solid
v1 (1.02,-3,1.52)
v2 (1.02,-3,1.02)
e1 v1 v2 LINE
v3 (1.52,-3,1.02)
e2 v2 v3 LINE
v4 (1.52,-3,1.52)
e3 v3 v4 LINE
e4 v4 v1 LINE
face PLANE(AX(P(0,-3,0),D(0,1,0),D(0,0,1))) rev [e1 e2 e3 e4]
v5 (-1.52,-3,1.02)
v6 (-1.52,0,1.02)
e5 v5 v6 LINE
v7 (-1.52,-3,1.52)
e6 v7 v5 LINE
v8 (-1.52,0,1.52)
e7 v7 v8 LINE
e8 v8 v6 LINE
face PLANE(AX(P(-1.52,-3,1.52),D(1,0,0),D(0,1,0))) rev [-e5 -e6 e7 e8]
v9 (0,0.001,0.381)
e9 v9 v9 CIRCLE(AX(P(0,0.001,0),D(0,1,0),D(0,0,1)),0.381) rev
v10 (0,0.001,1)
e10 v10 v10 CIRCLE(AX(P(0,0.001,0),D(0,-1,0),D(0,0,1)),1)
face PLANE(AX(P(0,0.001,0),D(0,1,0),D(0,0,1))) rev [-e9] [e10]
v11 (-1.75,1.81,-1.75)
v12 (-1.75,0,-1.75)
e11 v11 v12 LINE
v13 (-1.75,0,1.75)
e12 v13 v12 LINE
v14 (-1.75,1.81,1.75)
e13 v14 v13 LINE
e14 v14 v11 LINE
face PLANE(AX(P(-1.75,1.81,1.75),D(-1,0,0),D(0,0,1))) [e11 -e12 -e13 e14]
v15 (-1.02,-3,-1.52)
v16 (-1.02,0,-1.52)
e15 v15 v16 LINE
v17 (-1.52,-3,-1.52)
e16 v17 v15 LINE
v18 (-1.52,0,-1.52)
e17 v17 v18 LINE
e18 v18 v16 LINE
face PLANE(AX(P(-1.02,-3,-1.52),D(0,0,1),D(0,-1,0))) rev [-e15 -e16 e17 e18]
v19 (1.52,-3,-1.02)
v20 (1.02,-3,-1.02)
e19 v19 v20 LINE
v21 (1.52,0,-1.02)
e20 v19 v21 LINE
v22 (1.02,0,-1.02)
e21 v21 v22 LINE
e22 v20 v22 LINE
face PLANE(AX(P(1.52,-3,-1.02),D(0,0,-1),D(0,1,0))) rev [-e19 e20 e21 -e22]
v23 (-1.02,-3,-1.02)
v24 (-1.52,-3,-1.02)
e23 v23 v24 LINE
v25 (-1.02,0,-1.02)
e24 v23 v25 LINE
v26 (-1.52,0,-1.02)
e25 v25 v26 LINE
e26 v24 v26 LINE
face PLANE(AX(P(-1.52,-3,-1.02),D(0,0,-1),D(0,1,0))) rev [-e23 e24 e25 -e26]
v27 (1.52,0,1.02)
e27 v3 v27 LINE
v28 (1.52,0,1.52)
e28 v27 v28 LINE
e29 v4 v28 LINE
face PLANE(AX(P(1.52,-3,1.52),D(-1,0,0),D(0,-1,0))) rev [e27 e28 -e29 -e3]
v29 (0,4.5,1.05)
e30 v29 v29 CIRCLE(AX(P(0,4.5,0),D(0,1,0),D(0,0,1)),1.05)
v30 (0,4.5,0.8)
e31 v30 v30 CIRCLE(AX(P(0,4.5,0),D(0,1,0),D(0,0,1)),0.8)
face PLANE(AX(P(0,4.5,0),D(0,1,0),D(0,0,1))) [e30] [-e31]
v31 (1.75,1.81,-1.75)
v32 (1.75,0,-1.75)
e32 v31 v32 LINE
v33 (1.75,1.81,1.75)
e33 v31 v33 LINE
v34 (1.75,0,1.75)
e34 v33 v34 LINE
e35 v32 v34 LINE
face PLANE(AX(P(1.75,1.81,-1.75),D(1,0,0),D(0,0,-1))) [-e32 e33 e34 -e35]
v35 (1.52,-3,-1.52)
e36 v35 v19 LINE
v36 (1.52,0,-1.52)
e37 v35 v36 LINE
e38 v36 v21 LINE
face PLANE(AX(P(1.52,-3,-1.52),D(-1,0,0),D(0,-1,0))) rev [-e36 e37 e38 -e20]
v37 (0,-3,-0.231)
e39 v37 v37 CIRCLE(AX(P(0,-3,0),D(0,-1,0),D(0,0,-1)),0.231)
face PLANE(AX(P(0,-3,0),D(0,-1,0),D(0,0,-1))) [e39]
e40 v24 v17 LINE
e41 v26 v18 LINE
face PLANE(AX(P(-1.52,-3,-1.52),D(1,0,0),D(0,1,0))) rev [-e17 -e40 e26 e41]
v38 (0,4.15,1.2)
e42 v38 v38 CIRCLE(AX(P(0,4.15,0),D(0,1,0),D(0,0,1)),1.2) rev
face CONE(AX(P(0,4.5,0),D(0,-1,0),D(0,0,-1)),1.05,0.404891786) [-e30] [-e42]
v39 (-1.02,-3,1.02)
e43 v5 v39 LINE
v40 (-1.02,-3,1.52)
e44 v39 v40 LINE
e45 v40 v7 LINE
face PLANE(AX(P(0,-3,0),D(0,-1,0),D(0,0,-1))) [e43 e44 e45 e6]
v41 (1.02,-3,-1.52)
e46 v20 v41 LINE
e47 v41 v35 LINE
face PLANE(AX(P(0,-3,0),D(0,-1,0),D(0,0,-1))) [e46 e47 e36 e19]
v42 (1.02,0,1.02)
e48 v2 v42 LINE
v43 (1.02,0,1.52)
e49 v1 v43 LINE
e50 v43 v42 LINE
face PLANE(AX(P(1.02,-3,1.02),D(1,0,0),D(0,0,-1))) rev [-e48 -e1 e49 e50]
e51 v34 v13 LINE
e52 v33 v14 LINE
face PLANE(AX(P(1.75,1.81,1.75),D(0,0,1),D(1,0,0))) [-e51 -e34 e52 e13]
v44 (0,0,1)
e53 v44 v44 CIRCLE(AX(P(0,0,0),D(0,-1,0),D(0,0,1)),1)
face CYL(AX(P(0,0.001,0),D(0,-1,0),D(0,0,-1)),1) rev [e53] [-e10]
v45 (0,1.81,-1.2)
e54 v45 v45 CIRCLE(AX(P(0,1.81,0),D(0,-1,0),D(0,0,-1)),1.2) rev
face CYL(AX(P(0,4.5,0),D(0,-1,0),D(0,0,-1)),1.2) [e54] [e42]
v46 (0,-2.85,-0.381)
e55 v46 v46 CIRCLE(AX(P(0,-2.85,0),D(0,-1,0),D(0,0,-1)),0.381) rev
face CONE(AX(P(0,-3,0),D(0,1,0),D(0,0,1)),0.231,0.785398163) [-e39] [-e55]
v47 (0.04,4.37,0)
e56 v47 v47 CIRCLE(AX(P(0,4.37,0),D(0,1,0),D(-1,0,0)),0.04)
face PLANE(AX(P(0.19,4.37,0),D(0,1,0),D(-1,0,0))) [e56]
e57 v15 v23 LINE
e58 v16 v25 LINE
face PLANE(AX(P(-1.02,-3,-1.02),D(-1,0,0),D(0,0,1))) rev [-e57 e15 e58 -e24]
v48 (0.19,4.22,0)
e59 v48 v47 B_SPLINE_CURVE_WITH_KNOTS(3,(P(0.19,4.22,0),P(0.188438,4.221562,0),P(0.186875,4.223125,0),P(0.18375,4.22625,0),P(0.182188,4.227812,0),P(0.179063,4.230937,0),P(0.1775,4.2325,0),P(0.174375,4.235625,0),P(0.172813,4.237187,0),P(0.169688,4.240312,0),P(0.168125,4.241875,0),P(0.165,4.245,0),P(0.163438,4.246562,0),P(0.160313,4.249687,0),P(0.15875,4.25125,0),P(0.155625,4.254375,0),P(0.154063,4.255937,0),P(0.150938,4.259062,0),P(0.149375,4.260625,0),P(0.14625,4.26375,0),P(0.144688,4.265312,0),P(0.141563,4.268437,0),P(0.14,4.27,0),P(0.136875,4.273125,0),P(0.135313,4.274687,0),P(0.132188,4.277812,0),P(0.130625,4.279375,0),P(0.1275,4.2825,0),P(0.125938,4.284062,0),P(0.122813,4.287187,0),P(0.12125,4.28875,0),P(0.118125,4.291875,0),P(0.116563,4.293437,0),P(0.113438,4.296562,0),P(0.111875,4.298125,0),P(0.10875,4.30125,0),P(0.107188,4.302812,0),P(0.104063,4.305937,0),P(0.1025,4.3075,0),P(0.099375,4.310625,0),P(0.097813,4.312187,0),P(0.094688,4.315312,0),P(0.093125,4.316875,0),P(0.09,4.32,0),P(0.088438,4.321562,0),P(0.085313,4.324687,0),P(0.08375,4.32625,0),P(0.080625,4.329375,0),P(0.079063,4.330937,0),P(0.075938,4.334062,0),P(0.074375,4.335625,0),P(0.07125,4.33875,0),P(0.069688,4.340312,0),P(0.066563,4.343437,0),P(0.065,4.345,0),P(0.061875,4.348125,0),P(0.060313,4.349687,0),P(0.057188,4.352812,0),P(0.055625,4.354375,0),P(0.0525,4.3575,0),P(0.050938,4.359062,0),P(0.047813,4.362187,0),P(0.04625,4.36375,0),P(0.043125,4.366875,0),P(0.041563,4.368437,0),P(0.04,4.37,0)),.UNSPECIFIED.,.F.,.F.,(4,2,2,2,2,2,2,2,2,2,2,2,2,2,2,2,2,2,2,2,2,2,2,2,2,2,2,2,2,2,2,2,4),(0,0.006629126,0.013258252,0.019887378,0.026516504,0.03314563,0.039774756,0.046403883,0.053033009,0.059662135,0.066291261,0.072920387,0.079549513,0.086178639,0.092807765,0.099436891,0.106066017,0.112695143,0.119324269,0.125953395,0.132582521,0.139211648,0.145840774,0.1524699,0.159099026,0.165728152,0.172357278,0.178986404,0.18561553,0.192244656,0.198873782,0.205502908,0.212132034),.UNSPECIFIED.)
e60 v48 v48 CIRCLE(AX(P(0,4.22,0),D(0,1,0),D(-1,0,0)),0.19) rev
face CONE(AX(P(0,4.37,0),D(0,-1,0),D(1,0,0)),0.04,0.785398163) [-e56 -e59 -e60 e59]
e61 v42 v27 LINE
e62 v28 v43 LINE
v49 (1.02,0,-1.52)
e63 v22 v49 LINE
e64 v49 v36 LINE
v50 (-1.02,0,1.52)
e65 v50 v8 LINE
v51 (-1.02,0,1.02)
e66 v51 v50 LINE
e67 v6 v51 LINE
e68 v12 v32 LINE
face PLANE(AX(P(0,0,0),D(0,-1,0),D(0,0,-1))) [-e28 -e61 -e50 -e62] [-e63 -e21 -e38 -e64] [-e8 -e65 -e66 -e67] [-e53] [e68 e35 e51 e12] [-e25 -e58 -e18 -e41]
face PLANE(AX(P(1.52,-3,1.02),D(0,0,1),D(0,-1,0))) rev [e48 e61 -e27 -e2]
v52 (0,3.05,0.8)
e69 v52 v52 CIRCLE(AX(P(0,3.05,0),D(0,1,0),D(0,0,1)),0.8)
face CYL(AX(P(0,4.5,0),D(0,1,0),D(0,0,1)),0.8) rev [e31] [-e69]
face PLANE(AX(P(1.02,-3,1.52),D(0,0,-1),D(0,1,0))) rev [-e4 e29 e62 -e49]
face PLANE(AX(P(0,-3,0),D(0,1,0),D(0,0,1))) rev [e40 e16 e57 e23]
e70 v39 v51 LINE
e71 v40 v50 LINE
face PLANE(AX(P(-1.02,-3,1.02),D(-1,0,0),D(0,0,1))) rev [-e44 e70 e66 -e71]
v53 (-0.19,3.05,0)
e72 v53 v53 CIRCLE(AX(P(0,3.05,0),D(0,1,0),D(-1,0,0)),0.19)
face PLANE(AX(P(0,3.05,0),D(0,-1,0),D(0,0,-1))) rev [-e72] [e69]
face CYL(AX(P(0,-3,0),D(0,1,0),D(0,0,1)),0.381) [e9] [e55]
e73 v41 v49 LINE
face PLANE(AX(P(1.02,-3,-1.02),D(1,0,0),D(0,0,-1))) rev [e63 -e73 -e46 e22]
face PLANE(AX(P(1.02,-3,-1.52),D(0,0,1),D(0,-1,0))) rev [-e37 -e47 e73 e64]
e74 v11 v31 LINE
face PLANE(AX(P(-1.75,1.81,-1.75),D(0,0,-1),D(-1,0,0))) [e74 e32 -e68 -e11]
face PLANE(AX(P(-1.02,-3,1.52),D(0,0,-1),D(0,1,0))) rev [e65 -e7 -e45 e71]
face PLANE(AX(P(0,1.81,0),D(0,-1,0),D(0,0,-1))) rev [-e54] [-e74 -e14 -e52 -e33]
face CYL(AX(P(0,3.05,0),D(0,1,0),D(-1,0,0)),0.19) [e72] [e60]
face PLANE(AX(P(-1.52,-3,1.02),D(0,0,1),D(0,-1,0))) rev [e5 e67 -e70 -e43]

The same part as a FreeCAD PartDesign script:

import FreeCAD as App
import Part
import Sketcher
Q = App.Units.Quantity


def edges_at(feature, points):
    """Names of the edges that pass closest to the given points."""
    edges = feature.Shape.Edges
    near = lambda p: min(range(len(edges)), key=lambda i: edges[i].distToShape(Part.Vertex(*p))[0])
    return sorted({f"Edge{near(p) + 1}" for p in points})

doc = App.newDocument("Part")
body = doc.addObject("PartDesign::Body", "Body")

# Sketch on XZ plane
sketch1 = body.newObject("Sketcher::SketchObject", "Sketch")
sketch1.AttachmentSupport = (doc.getObject("XZ_Plane"), [""])
sketch1.MapMode = "FlatFace"
sketch1.addGeometry([
    Part.LineSegment(App.Vector(-1.8, 1.8, 0), App.Vector(-1.8, -1.8, 0)),
    Part.LineSegment(App.Vector(-1.8, -1.8, 0), App.Vector(1.8, -1.8, 0)),
    Part.LineSegment(App.Vector(1.8, -1.8, 0), App.Vector(1.8, 1.8, 0)),
    Part.LineSegment(App.Vector(1.8, 1.8, 0), App.Vector(-1.8, 1.8, 0)),
], False)
sketch1.addConstraint([
    Sketcher.Constraint("Coincident", 0, 2, 1, 1),
    Sketcher.Constraint("Coincident", 1, 2, 2, 1),
    Sketcher.Constraint("Coincident", 2, 2, 3, 1),
    Sketcher.Constraint("Coincident", 3, 2, 0, 1),
    Sketcher.Constraint("Vertical", 0),
    Sketcher.Constraint("Horizontal", 1),
    Sketcher.Constraint("Vertical", 2),
    Sketcher.Constraint("Horizontal", 3),
    Sketcher.Constraint("Symmetric", 0, 2, 2, 2, -1, 1),
    Sketcher.Constraint("Equal", 3, 0),
    Sketcher.Constraint("DistanceX", 1, 1, 1, 2, Q("3.5 mm")),
])
pad1 = body.newObject("PartDesign::Pad", "Pad")
pad1.Profile = sketch1
pad1.Length = 1.81
pad1.Reversed = True

# Sketch on XZ plane
sketch2 = body.newObject("Sketcher::SketchObject", "Sketch001")
sketch2.AttachmentSupport = (doc.getObject("XZ_Plane"), [""])
sketch2.MapMode = "FlatFace"
sketch2.addGeometry([
    Part.LineSegment(App.Vector(-1.5, -1, 0), App.Vector(-1.5, -1.5, 0)),  # 0
    Part.LineSegment(App.Vector(-1.5, -1.5, 0), App.Vector(-1, -1.5, 0)),  # 1
    Part.LineSegment(App.Vector(-1, -1.5, 0), App.Vector(-1, -1, 0)),  # 2
    Part.LineSegment(App.Vector(-1, -1, 0), App.Vector(-1.5, -1, 0)),  # 3
    Part.LineSegment(App.Vector(1, -1, 0), App.Vector(1, -1.5, 0)),  # 4
    Part.LineSegment(App.Vector(1, -1.5, 0), App.Vector(1.5, -1.5, 0)),  # 5
    Part.LineSegment(App.Vector(1.5, -1.5, 0), App.Vector(1.5, -1, 0)),  # 6
    Part.LineSegment(App.Vector(1.5, -1, 0), App.Vector(1, -1, 0)),  # 7
    Part.LineSegment(App.Vector(1, 1.5, 0), App.Vector(1, 1, 0)),  # 8
    Part.LineSegment(App.Vector(1, 1, 0), App.Vector(1.5, 1, 0)),  # 9
    Part.LineSegment(App.Vector(1.5, 1, 0), App.Vector(1.5, 1.5, 0)),  # 10
    Part.LineSegment(App.Vector(1.5, 1.5, 0), App.Vector(1, 1.5, 0)),  # 11
    Part.LineSegment(App.Vector(-1.5, 1.5, 0), App.Vector(-1.5, 1, 0)),  # 12
    Part.LineSegment(App.Vector(-1.5, 1, 0), App.Vector(-1, 1, 0)),  # 13
    Part.LineSegment(App.Vector(-1, 1, 0), App.Vector(-1, 1.5, 0)),  # 14
    Part.LineSegment(App.Vector(-1, 1.5, 0), App.Vector(-1.5, 1.5, 0)),  # 15
], False)
sketch2.addConstraint([
    Sketcher.Constraint("Coincident", 0, 2, 1, 1),
    Sketcher.Constraint("Coincident", 1, 2, 2, 1),
    Sketcher.Constraint("Coincident", 2, 2, 3, 1),
    Sketcher.Constraint("Coincident", 3, 2, 0, 1),
    Sketcher.Constraint("Coincident", 4, 2, 5, 1),
    Sketcher.Constraint("Coincident", 5, 2, 6, 1),
    Sketcher.Constraint("Coincident", 6, 2, 7, 1),
    Sketcher.Constraint("Coincident", 7, 2, 4, 1),
    Sketcher.Constraint("Coincident", 8, 2, 9, 1),
    Sketcher.Constraint("Coincident", 9, 2, 10, 1),
    Sketcher.Constraint("Coincident", 10, 2, 11, 1),
    Sketcher.Constraint("Coincident", 11, 2, 8, 1),
    Sketcher.Constraint("Coincident", 12, 2, 13, 1),
    Sketcher.Constraint("Coincident", 13, 2, 14, 1),
    Sketcher.Constraint("Coincident", 14, 2, 15, 1),
    Sketcher.Constraint("Coincident", 15, 2, 12, 1),
    Sketcher.Constraint("Vertical", 0),
    Sketcher.Constraint("Horizontal", 1),
    Sketcher.Constraint("Vertical", 2),
    Sketcher.Constraint("Horizontal", 3),
    Sketcher.Constraint("Vertical", 4),
    Sketcher.Constraint("Horizontal", 5),
    Sketcher.Constraint("Vertical", 6),
    Sketcher.Constraint("Horizontal", 7),
    Sketcher.Constraint("Vertical", 8),
    Sketcher.Constraint("Horizontal", 9),
    Sketcher.Constraint("Vertical", 10),
    Sketcher.Constraint("Horizontal", 11),
    Sketcher.Constraint("Vertical", 12),
    Sketcher.Constraint("Horizontal", 13),
    Sketcher.Constraint("Vertical", 14),
    Sketcher.Constraint("Horizontal", 15),
    Sketcher.Constraint("Symmetric", 2, 2, 8, 2, -1, 1),
    Sketcher.Constraint("Symmetric", 0, 2, 10, 2, -1, 1),
    Sketcher.Constraint("Symmetric", 6, 2, 12, 2, -1, 1),
    Sketcher.Constraint("Symmetric", 4, 2, 14, 2, -1, 1),
    Sketcher.Constraint("Symmetric", 1, 2, 4, 2, -2),
    Sketcher.Constraint("Symmetric", 3, 2, 6, 2, -2),
    Sketcher.Constraint("Equal", 15, 0),
    Sketcher.Constraint("DistanceX", 1, 1, 1, 2, Q("0.5 mm")),
    Sketcher.Constraint("DistanceX", 0, 2, -1, 1, Q("1.52 mm")),
    Sketcher.Constraint("DistanceY", 0, 2, -1, 1, Q("1.52 mm")),
])
pad2 = body.newObject("PartDesign::Pad", "Pad001")
pad2.Profile = sketch2
pad2.Length = 3

# Sketch on XZ plane
sketch3 = body.newObject("Sketcher::SketchObject", "Sketch002")
sketch3.AttachmentSupport = (doc.getObject("XZ_Plane"), [""])
sketch3.MapMode = "FlatFace"
sketch3.addGeometry(Part.Circle(App.Vector(0, 0, 0), App.Vector(0, 0, 1), 1), False)
sketch3.addConstraint([
    Sketcher.Constraint("Coincident", 0, 3, -1, 1),
    Sketcher.Constraint("Diameter", 0, Q("2 mm")),
])
pocket1 = body.newObject("PartDesign::Pocket", "Pocket")
pocket1.Profile = sketch3
pocket1.Length = 0.001

# Sketch on XZ plane
sketch4 = body.newObject("Sketcher::SketchObject", "Sketch003")
sketch4.AttachmentSupport = (doc.getObject("XZ_Plane"), [""])
sketch4.MapMode = "FlatFace"
sketch4.AttachmentOffset = App.Placement(App.Vector(0, 0, -1.81), App.Rotation())
sketch4.addGeometry(Part.Circle(App.Vector(0, 0, 0), App.Vector(0, 0, 1), 1.2), False)
sketch4.addConstraint([
    Sketcher.Constraint("Coincident", 0, 3, -1, 1),
    Sketcher.Constraint("Diameter", 0, Q("2.4 mm")),
])
pad3 = body.newObject("PartDesign::Pad", "Pad002")
pad3.Profile = sketch4
pad3.Length = 2.69
pad3.Reversed = True

# Sketch on XZ plane
sketch5 = body.newObject("Sketcher::SketchObject", "Sketch004")
sketch5.AttachmentSupport = (doc.getObject("XZ_Plane"), [""])
sketch5.MapMode = "FlatFace"
sketch5.AttachmentOffset = App.Placement(App.Vector(0, 0, -4.5), App.Rotation())
sketch5.addGeometry(Part.Circle(App.Vector(0, 0, 0), App.Vector(0, 0, 1), 0.8), False)
sketch5.addConstraint([
    Sketcher.Constraint("Coincident", 0, 3, -1, 1),
    Sketcher.Constraint("Diameter", 0, Q("1.6 mm")),
])
doc.recompute()
hole = body.newObject("PartDesign::Hole", "Hole")
hole.Profile = sketch5
hole.ThreadType = "None"
hole.Diameter = 1.6
hole.DepthType = "Dimension"
hole.Depth = 1.45
hole.DrillPoint = "Flat"
hole.Reversed = True

# Sketch on XY plane
sketch6 = body.newObject("Sketcher::SketchObject", "Sketch005")
sketch6.AttachmentSupport = (doc.getObject("XY_Plane"), [""])
sketch6.MapMode = "FlatFace"
sketch6.addGeometry([
    Part.LineSegment(App.Vector(0.19, 3.05, 0), App.Vector(0, 3.05, 0)),
    Part.LineSegment(App.Vector(0, 3.05, 0), App.Vector(0, 4.37, 0)),
    Part.LineSegment(App.Vector(0, 4.37, 0), App.Vector(0.19, 4.37, 0)),
    Part.LineSegment(App.Vector(0.19, 4.37, 0), App.Vector(0.19, 3.05, 0)),
], False)
sketch6.addConstraint([
    Sketcher.Constraint("Coincident", 0, 2, 1, 1),
    Sketcher.Constraint("Coincident", 1, 2, 2, 1),
    Sketcher.Constraint("Coincident", 2, 2, 3, 1),
    Sketcher.Constraint("Coincident", 3, 2, 0, 1),
    Sketcher.Constraint("Horizontal", 0),
    Sketcher.Constraint("Vertical", 1),
    Sketcher.Constraint("Horizontal", 2),
    Sketcher.Constraint("Vertical", 3),
    Sketcher.Constraint("PointOnObject", 0, 2, -2),
    Sketcher.Constraint("DistanceX", 0, 2, 0, 1, Q("0.19 mm")),
    Sketcher.Constraint("DistanceY", 1, 1, 1, 2, Q("1.32 mm")),
    Sketcher.Constraint("DistanceY", -1, 1, 0, 2, Q("3.05 mm")),
])
revolution = body.newObject("PartDesign::Revolution", "Revolution")
revolution.Profile = sketch6
revolution.ReferenceAxis = (sketch6, ["V_Axis"])
revolution.Angle = 360
doc.recompute()

chamfer = body.newObject("PartDesign::Chamfer", "Chamfer")
chamfer.Base = (revolution, edges_at(revolution, [(0, 4.37, -0.19)]))
chamfer.Size = 0.15

# Sketch on XZ plane
sketch7 = body.newObject("Sketcher::SketchObject", "Sketch006")
sketch7.AttachmentSupport = (doc.getObject("XZ_Plane"), [""])
sketch7.MapMode = "FlatFace"
sketch7.AttachmentOffset = App.Placement(App.Vector(0, 0, -0.001), App.Rotation())
sketch7.addGeometry(Part.Circle(App.Vector(0, 0, 0), App.Vector(0, 0, 1), 0.38), False)
sketch7.addConstraint([
    Sketcher.Constraint("Coincident", 0, 3, -1, 1),
    Sketcher.Constraint("Diameter", 0, Q("0.762 mm")),
])
pad4 = body.newObject("PartDesign::Pad", "Pad003")
pad4.Profile = sketch7
pad4.Length = 3.001
doc.recompute()

chamfer2 = body.newObject("PartDesign::Chamfer", "Chamfer001")
chamfer2.Base = (pad4, edges_at(pad4, [(0, -3, -0.381)]))
chamfer2.Size = 0.15
doc.recompute()

chamfer3 = body.newObject("PartDesign::Chamfer", "Chamfer002")
chamfer3.Base = (chamfer2, edges_at(chamfer2, [(0, 4.5, 1.2)]))
chamfer3.ChamferType = "Two distances"
chamfer3.Size = 0.35
chamfer3.Size2 = 0.15

doc.recompute()
